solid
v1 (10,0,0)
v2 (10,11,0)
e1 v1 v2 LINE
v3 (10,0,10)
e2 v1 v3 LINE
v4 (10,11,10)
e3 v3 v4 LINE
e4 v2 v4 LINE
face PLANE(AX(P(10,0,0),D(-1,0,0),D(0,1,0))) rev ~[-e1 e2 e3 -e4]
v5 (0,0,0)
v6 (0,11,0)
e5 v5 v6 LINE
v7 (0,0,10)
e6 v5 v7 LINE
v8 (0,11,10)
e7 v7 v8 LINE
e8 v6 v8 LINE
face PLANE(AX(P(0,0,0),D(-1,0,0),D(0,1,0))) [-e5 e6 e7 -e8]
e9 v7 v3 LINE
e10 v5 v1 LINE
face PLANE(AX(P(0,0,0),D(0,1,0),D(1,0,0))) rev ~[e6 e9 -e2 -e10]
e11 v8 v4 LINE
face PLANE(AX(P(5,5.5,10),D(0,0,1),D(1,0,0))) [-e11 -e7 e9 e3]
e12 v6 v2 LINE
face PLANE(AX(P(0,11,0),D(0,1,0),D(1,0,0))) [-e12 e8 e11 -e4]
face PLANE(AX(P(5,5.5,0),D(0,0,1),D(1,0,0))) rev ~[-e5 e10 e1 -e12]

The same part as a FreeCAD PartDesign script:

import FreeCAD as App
import Part
import Sketcher
from FreeCAD import Vector
Q = App.Units.Quantity


def add_polygon(sketch, points):
    """Adds a closed chain of lines whose ends are joined by coincident constraints."""
    first, n = sketch.GeometryCount, len(points)
    for a, b in zip(points, points[1:] + points[:1]):
        sketch.addGeometry(Part.LineSegment(App.Vector(*a, 0), App.Vector(*b, 0)), False)
    for i in range(n):
        sketch.addConstraint(Sketcher.Constraint("Coincident", first + i, 2, first + (i + 1) % n, 1))

doc = App.newDocument("Part")
body = doc.addObject("PartDesign::Body", "Body")

sketch1 = body.newObject("Sketcher::SketchObject", "Sketch")
sketch1.AttachmentSupport = (doc.getObject("XY_Plane"), [""])
sketch1.MapMode = "FlatFace"
add_polygon(sketch1, [(0, 11), (0, 0), (10, 0), (10, 11)])
sketch1.addConstraint([
    Sketcher.Constraint("Vertical", 0),
    Sketcher.Constraint("Horizontal", 1),
    Sketcher.Constraint("Vertical", 2),
    Sketcher.Constraint("Horizontal", 3),
    Sketcher.Constraint("Coincident", 0, 2, -1, 1),
    Sketcher.Constraint("DistanceX", 1, 1, 1, 2, Q("10 mm")),
    Sketcher.Constraint("DistanceY", 0, 2, 0, 1, Q("11 mm")),
])
pad1 = body.newObject("PartDesign::Pad", "Pad")
pad1.Profile = sketch1
pad1.Length = 10

doc.recompute()
